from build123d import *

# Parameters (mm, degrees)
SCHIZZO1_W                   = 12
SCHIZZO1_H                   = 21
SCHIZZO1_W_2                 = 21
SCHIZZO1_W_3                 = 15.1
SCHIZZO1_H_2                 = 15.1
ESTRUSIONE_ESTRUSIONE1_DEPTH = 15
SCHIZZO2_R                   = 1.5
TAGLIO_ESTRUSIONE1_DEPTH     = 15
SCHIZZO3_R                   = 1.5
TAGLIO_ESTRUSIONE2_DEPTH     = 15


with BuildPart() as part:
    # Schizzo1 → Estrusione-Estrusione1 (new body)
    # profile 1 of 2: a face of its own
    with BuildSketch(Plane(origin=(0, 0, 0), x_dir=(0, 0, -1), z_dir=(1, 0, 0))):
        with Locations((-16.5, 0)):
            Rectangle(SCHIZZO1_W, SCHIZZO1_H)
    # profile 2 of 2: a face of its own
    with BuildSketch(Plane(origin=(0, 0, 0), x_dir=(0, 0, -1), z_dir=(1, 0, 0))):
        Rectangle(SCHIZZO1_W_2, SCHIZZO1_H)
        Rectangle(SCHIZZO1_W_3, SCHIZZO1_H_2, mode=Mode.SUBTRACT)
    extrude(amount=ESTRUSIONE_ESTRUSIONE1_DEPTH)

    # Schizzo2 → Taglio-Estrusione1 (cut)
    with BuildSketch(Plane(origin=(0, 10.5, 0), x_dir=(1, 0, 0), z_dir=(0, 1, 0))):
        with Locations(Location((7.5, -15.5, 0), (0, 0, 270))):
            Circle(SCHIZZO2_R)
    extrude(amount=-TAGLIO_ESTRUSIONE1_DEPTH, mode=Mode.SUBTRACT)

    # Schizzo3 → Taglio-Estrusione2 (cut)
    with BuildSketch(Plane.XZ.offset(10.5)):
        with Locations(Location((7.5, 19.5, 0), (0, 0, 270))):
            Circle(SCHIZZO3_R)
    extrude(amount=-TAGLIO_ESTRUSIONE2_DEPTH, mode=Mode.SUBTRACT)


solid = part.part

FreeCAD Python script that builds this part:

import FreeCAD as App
import Part
import Sketcher

doc = App.newDocument("Part")
body = doc.addObject("PartDesign::Body", "Body")

# Sketch on YZ plane
sketch1 = body.newObject("Sketcher::SketchObject", "Sketch")
sketch1.AttachmentSupport = (doc.getObject("YZ_Plane"), [""])
sketch1.MapMode = "FlatFace"
sketch1.addGeometry(Part.LineSegment(App.Vector(10.5, 22.5, 0), App.Vector(-10.5, 22.5, 0)), False)
sketch1.addGeometry(Part.LineSegment(App.Vector(-10.5, 22.5, 0), App.Vector(-10.5, -10.5, 0)), False)
sketch1.addGeometry(Part.LineSegment(App.Vector(-10.5, -10.5, 0), App.Vector(10.5, -10.5, 0)), False)
sketch1.addGeometry(Part.LineSegment(App.Vector(10.5, -10.5, 0), App.Vector(10.5, 22.5, 0)), False)
sketch1.addGeometry(Part.LineSegment(App.Vector(-7.55, 7.55, 0), App.Vector(7.55, 7.55, 0)), False)
sketch1.addGeometry(Part.LineSegment(App.Vector(7.55, 7.55, 0), App.Vector(7.55, -7.55, 0)), False)
sketch1.addGeometry(Part.LineSegment(App.Vector(7.55, -7.55, 0), App.Vector(-7.55, -7.55, 0)), False)
sketch1.addGeometry(Part.LineSegment(App.Vector(-7.55, -7.55, 0), App.Vector(-7.55, 7.55, 0)), False)
sketch1.addConstraint(Sketcher.Constraint("Coincident", 0, 2, 1, 1))
sketch1.addConstraint(Sketcher.Constraint("Coincident", 1, 2, 2, 1))
sketch1.addConstraint(Sketcher.Constraint("Coincident", 2, 2, 3, 1))
sketch1.addConstraint(Sketcher.Constraint("Coincident", 3, 2, 0, 1))
sketch1.addConstraint(Sketcher.Constraint("Coincident", 4, 2, 5, 1))
sketch1.addConstraint(Sketcher.Constraint("Coincident", 5, 2, 6, 1))
sketch1.addConstraint(Sketcher.Constraint("Coincident", 6, 2, 7, 1))
sketch1.addConstraint(Sketcher.Constraint("Coincident", 7, 2, 4, 1))
sketch1.addConstraint(Sketcher.Constraint("Horizontal", 0))
sketch1.addConstraint(Sketcher.Constraint("Vertical", 1))
sketch1.addConstraint(Sketcher.Constraint("Horizontal", 2))
sketch1.addConstraint(Sketcher.Constraint("Vertical", 3))
sketch1.addConstraint(Sketcher.Constraint("Horizontal", 4))
sketch1.addConstraint(Sketcher.Constraint("Vertical", 5))
sketch1.addConstraint(Sketcher.Constraint("Horizontal", 6))
sketch1.addConstraint(Sketcher.Constraint("Vertical", 7))
sketch1.addConstraint(Sketcher.Constraint("Symmetric", 4, 2, 6, 2, -1, 1))
sketch1.addConstraint(Sketcher.Constraint("Equal", 6, 5))
sketch1.addConstraint(Sketcher.Constraint("DistanceX", 0, 2, 0, 1, 21.0))
sketch1.addConstraint(Sketcher.Constraint("DistanceY", 1, 2, 1, 1, 33.0))
sketch1.addConstraint(Sketcher.Constraint("DistanceX", 4, 1, 4, 2, 15.1))
sketch1.addConstraint(Sketcher.Constraint("DistanceX", 0, 2, -1, 1, 10.5))
sketch1.addConstraint(Sketcher.Constraint("DistanceY", -1, 1, 0, 2, 22.5))
pad1 = body.newObject("PartDesign::Pad", "Pad")
pad1.Profile = sketch1
pad1.Length = 15

# Sketch on XZ plane
sketch2 = body.newObject("Sketcher::SketchObject", "Sketch001")
sketch2.AttachmentSupport = (doc.getObject("XZ_Plane"), [""])
sketch2.MapMode = "FlatFace"
sketch2.AttachmentOffset = App.Placement(App.Vector(0, 0, -10.5), App.Rotation())
sketch2.addGeometry(Part.Circle(App.Vector(7.5, 15.5, 0), App.Vector(0, 0, 1), 1.5), False)
sketch2.addConstraint(Sketcher.Constraint("Diameter", 0, 3.0))
sketch2.addConstraint(Sketcher.Constraint("DistanceX", -1, 1, 0, 3, 7.5))
sketch2.addConstraint(Sketcher.Constraint("DistanceY", -1, 1, 0, 3, 15.5))
pocket1 = body.newObject("PartDesign::Pocket", "Pocket")
pocket1.Profile = sketch2
pocket1.Length = 15
pocket1.Reversed = True

# Sketch on XZ plane
sketch3 = body.newObject("Sketcher::SketchObject", "Sketch002")
sketch3.AttachmentSupport = (doc.getObject("XZ_Plane"), [""])
sketch3.MapMode = "FlatFace"
sketch3.AttachmentOffset = App.Placement(App.Vector(0, 0, 10.5), App.Rotation())
sketch3.addGeometry(Part.Circle(App.Vector(7.5, 19.5, 0), App.Vector(0, 0, 1), 1.5), False)
sketch3.addConstraint(Sketcher.Constraint("Diameter", 0, 3.0))
sketch3.addConstraint(Sketcher.Constraint("DistanceX", -1, 1, 0, 3, 7.5))
sketch3.addConstraint(Sketcher.Constraint("DistanceY", -1, 1, 0, 3, 19.5))
pocket2 = body.newObject("PartDesign::Pocket", "Pocket001")
pocket2.Profile = sketch3
pocket2.Length = 15

doc.recompute()
